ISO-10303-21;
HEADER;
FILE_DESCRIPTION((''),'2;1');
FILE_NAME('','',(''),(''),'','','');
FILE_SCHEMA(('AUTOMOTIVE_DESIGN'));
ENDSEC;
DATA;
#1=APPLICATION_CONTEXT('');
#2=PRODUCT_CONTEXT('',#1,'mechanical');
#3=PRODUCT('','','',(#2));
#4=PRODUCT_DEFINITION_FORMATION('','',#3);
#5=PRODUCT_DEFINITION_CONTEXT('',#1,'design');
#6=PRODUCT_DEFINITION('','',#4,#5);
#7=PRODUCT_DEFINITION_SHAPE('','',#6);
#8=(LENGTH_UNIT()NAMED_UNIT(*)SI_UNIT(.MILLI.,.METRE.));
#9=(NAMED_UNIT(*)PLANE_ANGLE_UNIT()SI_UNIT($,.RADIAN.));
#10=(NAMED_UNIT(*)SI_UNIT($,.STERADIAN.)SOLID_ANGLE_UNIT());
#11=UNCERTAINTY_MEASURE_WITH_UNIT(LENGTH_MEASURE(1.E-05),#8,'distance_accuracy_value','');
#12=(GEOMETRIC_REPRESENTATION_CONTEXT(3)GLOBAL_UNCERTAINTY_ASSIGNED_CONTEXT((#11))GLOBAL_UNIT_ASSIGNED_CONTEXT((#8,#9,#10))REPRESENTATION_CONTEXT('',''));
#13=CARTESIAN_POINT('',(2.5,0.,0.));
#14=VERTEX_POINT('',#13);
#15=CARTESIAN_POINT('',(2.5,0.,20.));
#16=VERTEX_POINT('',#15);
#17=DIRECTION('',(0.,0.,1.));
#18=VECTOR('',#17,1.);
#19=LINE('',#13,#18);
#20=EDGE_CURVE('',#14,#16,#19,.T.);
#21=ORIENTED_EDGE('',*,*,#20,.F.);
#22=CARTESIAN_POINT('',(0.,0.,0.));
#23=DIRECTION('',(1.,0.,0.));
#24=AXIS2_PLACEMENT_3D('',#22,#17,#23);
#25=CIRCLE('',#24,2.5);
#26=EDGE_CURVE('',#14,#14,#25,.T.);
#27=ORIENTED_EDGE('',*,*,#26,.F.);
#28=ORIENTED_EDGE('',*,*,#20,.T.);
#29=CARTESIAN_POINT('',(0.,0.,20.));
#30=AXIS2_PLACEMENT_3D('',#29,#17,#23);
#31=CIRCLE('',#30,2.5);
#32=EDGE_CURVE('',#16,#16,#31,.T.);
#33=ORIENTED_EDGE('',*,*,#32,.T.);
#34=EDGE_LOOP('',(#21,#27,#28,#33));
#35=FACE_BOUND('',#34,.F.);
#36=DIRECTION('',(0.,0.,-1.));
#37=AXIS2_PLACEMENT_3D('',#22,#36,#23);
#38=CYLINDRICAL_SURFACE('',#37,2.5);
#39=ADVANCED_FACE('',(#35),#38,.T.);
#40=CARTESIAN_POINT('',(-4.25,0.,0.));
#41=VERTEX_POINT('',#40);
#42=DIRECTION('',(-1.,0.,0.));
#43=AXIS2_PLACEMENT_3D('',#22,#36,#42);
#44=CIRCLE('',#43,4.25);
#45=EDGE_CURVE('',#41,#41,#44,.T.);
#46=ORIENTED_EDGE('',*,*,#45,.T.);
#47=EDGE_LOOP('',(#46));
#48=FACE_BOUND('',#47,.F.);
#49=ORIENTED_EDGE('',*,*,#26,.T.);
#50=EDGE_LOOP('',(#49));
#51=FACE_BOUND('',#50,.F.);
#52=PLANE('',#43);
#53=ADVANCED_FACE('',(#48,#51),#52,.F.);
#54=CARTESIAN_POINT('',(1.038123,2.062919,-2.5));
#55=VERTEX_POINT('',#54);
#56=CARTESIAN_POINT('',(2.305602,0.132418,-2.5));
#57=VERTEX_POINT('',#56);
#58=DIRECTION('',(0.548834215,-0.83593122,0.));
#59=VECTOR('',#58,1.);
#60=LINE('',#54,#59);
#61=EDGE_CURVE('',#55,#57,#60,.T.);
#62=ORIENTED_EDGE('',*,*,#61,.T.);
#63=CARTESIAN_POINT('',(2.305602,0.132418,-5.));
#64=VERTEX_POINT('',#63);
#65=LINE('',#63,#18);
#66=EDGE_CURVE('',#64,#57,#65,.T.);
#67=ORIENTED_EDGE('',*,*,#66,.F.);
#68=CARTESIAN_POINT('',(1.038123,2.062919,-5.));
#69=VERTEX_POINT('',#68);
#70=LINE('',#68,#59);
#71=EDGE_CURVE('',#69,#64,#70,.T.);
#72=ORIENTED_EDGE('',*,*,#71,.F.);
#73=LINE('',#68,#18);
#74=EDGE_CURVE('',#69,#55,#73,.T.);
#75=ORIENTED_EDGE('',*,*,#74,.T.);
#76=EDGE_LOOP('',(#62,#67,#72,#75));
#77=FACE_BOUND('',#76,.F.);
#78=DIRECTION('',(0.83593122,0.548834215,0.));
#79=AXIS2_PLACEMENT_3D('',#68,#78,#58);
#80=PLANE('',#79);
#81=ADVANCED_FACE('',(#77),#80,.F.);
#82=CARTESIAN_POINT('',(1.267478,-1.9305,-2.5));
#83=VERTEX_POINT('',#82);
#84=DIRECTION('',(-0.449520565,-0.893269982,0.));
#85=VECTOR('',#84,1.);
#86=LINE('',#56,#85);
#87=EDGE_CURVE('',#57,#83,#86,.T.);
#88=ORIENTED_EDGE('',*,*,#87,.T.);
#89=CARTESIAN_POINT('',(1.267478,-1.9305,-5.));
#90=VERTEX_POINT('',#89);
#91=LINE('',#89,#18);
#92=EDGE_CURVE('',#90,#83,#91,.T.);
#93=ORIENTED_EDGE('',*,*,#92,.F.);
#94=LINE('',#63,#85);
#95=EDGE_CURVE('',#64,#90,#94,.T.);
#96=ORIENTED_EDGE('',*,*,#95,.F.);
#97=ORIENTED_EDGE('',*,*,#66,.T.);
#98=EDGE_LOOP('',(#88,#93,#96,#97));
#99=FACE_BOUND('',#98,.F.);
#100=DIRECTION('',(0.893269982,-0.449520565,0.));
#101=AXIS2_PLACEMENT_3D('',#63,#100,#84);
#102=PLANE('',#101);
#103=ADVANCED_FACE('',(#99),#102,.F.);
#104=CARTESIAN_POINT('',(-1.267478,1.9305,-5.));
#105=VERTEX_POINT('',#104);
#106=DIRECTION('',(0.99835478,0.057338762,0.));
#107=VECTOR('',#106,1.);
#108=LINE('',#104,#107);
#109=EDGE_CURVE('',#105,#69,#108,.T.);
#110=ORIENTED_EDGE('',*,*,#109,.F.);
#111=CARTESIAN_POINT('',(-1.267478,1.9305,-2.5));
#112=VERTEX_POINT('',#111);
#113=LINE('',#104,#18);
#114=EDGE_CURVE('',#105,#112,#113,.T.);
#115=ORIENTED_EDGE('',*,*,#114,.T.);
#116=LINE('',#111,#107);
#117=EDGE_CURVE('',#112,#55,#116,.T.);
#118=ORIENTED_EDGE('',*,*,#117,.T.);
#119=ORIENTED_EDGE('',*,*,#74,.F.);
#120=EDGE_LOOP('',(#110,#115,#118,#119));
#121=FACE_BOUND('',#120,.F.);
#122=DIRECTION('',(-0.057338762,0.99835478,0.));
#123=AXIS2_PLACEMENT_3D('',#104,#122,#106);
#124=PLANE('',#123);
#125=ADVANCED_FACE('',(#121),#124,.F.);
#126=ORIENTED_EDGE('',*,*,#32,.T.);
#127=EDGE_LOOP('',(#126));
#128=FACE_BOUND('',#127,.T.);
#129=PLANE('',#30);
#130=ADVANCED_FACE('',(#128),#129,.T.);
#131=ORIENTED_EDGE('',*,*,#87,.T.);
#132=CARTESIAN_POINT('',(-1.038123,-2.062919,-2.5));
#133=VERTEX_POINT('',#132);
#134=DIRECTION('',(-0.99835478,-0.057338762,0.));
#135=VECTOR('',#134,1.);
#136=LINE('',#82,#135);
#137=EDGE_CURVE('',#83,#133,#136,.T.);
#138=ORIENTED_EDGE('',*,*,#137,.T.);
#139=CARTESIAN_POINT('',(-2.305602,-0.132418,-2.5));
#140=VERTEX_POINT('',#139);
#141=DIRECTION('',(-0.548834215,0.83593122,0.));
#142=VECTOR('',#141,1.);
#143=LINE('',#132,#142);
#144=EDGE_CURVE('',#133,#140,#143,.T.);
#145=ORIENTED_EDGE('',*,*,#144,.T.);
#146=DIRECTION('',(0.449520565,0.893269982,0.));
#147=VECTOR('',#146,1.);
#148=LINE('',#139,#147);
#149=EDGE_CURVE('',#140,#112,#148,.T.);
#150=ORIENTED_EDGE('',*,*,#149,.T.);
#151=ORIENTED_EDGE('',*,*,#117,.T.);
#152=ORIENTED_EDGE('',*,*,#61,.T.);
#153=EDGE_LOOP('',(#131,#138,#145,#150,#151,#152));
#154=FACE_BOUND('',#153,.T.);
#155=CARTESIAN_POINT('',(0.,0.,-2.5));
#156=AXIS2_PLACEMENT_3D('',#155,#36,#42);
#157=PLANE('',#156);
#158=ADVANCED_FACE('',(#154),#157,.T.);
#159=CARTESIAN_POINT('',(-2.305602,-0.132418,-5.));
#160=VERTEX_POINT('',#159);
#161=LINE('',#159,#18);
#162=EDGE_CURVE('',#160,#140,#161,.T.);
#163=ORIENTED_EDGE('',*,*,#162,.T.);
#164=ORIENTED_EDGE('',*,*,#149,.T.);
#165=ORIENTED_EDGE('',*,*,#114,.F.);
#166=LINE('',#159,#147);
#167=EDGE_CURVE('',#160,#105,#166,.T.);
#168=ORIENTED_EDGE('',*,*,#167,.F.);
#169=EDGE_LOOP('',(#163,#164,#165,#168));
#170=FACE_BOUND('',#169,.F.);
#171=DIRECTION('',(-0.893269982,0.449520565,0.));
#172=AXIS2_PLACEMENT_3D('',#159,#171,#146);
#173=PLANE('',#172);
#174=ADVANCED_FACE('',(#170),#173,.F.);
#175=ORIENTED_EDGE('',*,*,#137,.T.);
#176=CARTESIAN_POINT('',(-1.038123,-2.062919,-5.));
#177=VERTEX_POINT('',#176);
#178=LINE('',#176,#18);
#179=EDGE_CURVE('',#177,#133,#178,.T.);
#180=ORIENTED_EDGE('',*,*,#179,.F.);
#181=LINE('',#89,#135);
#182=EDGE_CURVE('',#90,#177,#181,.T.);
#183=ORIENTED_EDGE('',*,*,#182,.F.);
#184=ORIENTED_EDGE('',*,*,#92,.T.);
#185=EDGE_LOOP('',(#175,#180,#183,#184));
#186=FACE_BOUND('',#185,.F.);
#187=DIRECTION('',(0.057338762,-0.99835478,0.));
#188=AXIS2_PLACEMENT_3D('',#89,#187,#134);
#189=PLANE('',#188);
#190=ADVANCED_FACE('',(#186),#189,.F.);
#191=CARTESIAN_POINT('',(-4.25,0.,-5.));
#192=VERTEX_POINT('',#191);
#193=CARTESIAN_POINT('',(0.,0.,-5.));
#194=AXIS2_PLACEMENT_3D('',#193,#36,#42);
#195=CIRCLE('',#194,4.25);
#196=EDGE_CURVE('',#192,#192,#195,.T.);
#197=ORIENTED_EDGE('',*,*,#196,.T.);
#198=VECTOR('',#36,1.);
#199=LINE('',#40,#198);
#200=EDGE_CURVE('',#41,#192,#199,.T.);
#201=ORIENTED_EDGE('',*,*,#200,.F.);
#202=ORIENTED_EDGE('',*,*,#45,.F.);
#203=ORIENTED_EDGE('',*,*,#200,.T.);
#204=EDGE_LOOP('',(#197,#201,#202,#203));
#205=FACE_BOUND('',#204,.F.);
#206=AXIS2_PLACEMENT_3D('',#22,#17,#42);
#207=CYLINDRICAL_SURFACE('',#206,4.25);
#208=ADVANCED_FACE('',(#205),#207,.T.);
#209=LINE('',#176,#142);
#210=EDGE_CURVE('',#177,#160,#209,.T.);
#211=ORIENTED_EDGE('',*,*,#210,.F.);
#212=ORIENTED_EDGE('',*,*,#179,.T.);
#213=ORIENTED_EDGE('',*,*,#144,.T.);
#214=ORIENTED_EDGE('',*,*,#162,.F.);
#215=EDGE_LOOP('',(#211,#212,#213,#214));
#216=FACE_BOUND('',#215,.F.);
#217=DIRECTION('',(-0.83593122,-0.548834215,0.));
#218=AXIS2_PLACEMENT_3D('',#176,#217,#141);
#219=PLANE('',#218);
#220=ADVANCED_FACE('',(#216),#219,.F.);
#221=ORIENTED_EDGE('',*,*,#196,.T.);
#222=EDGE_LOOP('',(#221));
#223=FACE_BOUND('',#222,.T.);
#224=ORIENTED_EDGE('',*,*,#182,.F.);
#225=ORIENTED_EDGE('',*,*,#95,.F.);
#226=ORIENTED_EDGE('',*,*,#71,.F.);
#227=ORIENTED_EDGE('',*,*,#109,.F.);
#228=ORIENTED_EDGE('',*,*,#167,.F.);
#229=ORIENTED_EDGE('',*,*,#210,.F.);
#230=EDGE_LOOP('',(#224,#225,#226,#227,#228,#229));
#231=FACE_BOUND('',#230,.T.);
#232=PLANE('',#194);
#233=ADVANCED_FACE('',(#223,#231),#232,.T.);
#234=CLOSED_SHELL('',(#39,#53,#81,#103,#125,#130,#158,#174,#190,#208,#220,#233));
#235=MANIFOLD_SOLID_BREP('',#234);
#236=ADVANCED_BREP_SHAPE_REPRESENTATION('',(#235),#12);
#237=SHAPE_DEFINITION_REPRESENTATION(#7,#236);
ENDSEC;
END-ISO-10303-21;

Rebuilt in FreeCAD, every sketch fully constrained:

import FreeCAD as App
import Part
import Sketcher

V = App.Vector
Q = App.Units.Quantity


def add_polygon(sketch, points):
    """Adds a closed chain of lines whose ends are joined by coincident constraints."""
    first, n = sketch.GeometryCount, len(points)
    for a, b in zip(points, points[1:] + points[:1]):
        sketch.addGeometry(Part.LineSegment(App.Vector(*a, 0), App.Vector(*b, 0)), False)
    for i in range(n):
        sketch.addConstraint(Sketcher.Constraint("Coincident", first + i, 2, first + (i + 1) % n, 1))

doc = App.newDocument("Part")
body = doc.addObject("PartDesign::Body", "Body")

sketch1 = body.newObject("Sketcher::SketchObject", "Sketch")
sketch1.AttachmentSupport = (doc.getObject("XY_Plane"), [""])
sketch1.MapMode = "FlatFace"
sketch1.addGeometry(Part.Circle(V(0, 0, 0), V(0, 0, 1), 2.5), False)
sketch1.addConstraint([
    Sketcher.Constraint("Coincident", 0, 3, -1, 1),
    Sketcher.Constraint("Diameter", 0, Q("5 mm")),
])
pad1 = body.newObject("PartDesign::Pad", "Pad")
pad1.Profile = sketch1
pad1.Length = 20

sketch2 = body.newObject("Sketcher::SketchObject", "Sketch001")
sketch2.AttachmentSupport = (doc.getObject("XY_Plane"), [""])
sketch2.MapMode = "FlatFace"
sketch2.addGeometry(Part.Circle(V(0, 0, 0), V(0, 0, 1), 4.2), False)
sketch2.addConstraint([
    Sketcher.Constraint("Coincident", 0, 3, -1, 1),
    Sketcher.Constraint("Diameter", 0, Q("8.5 mm")),
])
pad2 = body.newObject("PartDesign::Pad", "Pad001")
pad2.Profile = sketch2
pad2.Length = 5
pad2.Reversed = True

sketch3 = body.newObject("Sketcher::SketchObject", "Sketch002")
sketch3.AttachmentSupport = (doc.getObject("XY_Plane"), [""])
sketch3.MapMode = "FlatFace"
sketch3.AttachmentOffset = App.Placement(V(0, 0, -5), App.Rotation())
add_polygon(sketch3, [(-1.3, 1.9), (1, 2.1), (2.3, 0.1), (1.3, -1.9), (-1, -2.1), (-2.3, -0.1)])
sketch3.addConstraint([
    Sketcher.Constraint("Symmetric", 0, 2, 3, 2, -1, 1),
    Sketcher.Constraint("Symmetric", 1, 2, 4, 2, -1, 1),
    Sketcher.Constraint("Symmetric", 2, 2, 5, 2, -1, 1),
    Sketcher.Constraint("Equal", 0, 1),
    Sketcher.Constraint("Equal", 1, 2),
    Sketcher.Constraint("DistanceY", 2, 2, 5, 2, Q("3.861001 mm")),
    Sketcher.Constraint("Distance", 0, Q("2.309401 mm")),
    Sketcher.Constraint("DistanceX", -1, 1, 1, 2, Q("2.305602 mm")),
    Sketcher.Constraint("DistanceY", 1, 2, 0, 2, Q("1.9305 mm")),
])
pocket1 = body.newObject("PartDesign::Pocket", "Pocket")
pocket1.Profile = sketch3
pocket1.Length = 2.5
pocket1.Reversed = True

doc.recompute()
